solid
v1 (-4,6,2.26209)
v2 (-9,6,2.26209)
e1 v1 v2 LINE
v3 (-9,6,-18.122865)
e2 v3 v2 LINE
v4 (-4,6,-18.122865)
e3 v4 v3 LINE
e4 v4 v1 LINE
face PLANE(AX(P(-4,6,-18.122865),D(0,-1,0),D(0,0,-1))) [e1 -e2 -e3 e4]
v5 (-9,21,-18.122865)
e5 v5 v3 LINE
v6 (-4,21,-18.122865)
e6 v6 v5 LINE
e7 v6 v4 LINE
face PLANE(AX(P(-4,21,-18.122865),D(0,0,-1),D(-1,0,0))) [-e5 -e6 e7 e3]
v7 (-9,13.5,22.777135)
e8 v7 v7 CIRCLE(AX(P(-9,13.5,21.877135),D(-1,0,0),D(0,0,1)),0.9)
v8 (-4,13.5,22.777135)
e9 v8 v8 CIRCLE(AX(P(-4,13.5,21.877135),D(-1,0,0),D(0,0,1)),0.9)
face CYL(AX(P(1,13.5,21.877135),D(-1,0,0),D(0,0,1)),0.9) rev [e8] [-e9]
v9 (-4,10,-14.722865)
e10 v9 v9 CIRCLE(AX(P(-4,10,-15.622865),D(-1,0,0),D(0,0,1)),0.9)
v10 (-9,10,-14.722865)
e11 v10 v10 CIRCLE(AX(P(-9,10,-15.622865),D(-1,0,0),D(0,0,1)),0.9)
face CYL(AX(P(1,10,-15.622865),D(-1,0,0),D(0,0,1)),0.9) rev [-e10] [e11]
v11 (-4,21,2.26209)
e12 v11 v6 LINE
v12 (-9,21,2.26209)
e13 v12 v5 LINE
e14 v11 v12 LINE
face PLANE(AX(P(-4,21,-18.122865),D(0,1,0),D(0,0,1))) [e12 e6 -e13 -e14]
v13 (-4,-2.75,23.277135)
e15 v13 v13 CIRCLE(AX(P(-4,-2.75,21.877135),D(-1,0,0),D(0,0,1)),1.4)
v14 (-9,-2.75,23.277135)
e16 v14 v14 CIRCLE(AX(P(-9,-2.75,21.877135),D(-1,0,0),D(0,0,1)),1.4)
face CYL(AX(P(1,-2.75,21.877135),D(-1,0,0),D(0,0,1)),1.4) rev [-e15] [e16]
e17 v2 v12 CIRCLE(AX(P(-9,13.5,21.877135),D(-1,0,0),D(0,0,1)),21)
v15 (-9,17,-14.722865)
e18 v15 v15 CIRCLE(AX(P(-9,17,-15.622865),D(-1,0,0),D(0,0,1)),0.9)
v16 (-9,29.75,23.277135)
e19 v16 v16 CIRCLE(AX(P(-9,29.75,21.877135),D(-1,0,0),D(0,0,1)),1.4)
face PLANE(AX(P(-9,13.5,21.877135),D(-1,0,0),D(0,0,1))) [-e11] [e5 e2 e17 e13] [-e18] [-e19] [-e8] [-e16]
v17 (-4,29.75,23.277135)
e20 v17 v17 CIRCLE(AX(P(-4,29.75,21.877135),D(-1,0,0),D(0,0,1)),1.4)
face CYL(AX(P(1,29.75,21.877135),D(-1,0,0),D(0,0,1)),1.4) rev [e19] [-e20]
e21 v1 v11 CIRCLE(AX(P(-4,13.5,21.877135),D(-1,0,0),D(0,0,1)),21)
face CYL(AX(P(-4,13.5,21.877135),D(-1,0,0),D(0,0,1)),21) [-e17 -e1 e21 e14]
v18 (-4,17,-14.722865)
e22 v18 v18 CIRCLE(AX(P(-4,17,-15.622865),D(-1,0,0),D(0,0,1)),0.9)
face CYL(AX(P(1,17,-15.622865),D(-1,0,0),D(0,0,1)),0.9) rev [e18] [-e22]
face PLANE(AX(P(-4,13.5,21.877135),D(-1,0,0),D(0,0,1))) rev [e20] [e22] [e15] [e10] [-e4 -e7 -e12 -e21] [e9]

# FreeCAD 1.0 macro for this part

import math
import FreeCAD as App
import Part
import Sketcher

doc = App.newDocument("Part")
body = doc.addObject("PartDesign::Body", "Body")

sketch1 = body.newObject("Sketcher::SketchObject", "Sketch")
sketch1.AttachmentSupport = (doc.getObject("YZ_Plane"), [""])
sketch1.MapMode = "FlatFace"
sketch1.AttachmentOffset = App.Placement(App.Vector(0, 0, -9), App.Rotation())
sketch1.addGeometry([
    Part.LineSegment(App.Vector(21, 2, 0), App.Vector(21, -18, 0)),
    Part.LineSegment(App.Vector(21, -18, 0), App.Vector(6, -18, 0)),
    Part.LineSegment(App.Vector(6, -18, 0), App.Vector(6, 2, 0)),
    Part.ArcOfCircle(Part.Circle(App.Vector(14, 22, 0), App.Vector(0, 0, 1), 21), math.radians(-69), math.radians(249)),
], False)
sketch1.addConstraint([
    Sketcher.Constraint("Coincident", 0, 2, 1, 1),
    Sketcher.Constraint("Coincident", 1, 2, 2, 1),
    Sketcher.Constraint("Coincident", 2, 2, 3, 2),
    Sketcher.Constraint("Coincident", 3, 1, 0, 1),
    Sketcher.Constraint("Vertical", 0),
    Sketcher.Constraint("Horizontal", 1),
    Sketcher.Constraint("Vertical", 2),
    Sketcher.Constraint("Horizontal", 2, 2, 3, 1),
    Sketcher.Constraint("Radius", 3, 21.0),
    Sketcher.Constraint("DistanceX", 1, 2, 1, 1, 15.0),
    Sketcher.Constraint("DistanceX", -1, 1, 0, 2, 21.0),
    Sketcher.Constraint("DistanceY", 0, 2, 3, 3, 40.0),
    Sketcher.Constraint("DistanceY", -1, 1, 2, 2, 2.26209),
])
pad1 = body.newObject("PartDesign::Pad", "Pad")
pad1.Profile = sketch1
pad1.Length = 5

sketch2 = body.newObject("Sketcher::SketchObject", "Sketch001")
sketch2.AttachmentSupport = (doc.getObject("YZ_Plane"), [""])
sketch2.MapMode = "FlatFace"
sketch2.AttachmentOffset = App.Placement(App.Vector(0, 0, -9), App.Rotation())
sketch2.addGeometry([
    Part.Circle(App.Vector(13.5, 21.9, 0), App.Vector(0, 0, 1), 0.9),
    Part.Circle(App.Vector(17, -15.6, 0), App.Vector(0, 0, 1), 0.9),
    Part.Circle(App.Vector(10, -15.6, 0), App.Vector(0, 0, 1), 0.9),
    Part.Circle(App.Vector(29.8, 21.9, 0), App.Vector(0, 0, 1), 1.4),
    Part.Circle(App.Vector(-2.8, 21.9, 0), App.Vector(0, 0, 1), 1.4),
], False)
sketch2.addConstraint([
    Sketcher.Constraint("Equal", 0, 1),
    Sketcher.Constraint("Equal", 1, 2),
    Sketcher.Constraint("Equal", 3, 4),
    Sketcher.Constraint("Horizontal", 1, 3, 2, 3),
    Sketcher.Constraint("Horizontal", 0, 3, 3, 3),
    Sketcher.Constraint("Horizontal", 3, 3, 4, 3),
    Sketcher.Constraint("Diameter", 0, 1.8),
    Sketcher.Constraint("Diameter", 3, 2.8),
    Sketcher.Constraint("DistanceX", -1, 1, 1, 3, 17.0),
    Sketcher.Constraint("DistanceX", -1, 1, 2, 3, 10.0),
    Sketcher.Constraint("DistanceX", -1, 1, 0, 3, 13.5),
    Sketcher.Constraint("DistanceY", 1, 3, 0, 3, 37.5),
    Sketcher.Constraint("DistanceX", 4, 3, 3, 3, 32.5),
    Sketcher.Constraint("DistanceX", -1, 1, 3, 3, 29.75),
    Sketcher.Constraint("DistanceY", -1, 1, 0, 3, 21.877135),
])
pocket1 = body.newObject("PartDesign::Pocket", "Pocket")
pocket1.Profile = sketch2
pocket1.Length = 10
pocket1.Reversed = True

doc.recompute()
